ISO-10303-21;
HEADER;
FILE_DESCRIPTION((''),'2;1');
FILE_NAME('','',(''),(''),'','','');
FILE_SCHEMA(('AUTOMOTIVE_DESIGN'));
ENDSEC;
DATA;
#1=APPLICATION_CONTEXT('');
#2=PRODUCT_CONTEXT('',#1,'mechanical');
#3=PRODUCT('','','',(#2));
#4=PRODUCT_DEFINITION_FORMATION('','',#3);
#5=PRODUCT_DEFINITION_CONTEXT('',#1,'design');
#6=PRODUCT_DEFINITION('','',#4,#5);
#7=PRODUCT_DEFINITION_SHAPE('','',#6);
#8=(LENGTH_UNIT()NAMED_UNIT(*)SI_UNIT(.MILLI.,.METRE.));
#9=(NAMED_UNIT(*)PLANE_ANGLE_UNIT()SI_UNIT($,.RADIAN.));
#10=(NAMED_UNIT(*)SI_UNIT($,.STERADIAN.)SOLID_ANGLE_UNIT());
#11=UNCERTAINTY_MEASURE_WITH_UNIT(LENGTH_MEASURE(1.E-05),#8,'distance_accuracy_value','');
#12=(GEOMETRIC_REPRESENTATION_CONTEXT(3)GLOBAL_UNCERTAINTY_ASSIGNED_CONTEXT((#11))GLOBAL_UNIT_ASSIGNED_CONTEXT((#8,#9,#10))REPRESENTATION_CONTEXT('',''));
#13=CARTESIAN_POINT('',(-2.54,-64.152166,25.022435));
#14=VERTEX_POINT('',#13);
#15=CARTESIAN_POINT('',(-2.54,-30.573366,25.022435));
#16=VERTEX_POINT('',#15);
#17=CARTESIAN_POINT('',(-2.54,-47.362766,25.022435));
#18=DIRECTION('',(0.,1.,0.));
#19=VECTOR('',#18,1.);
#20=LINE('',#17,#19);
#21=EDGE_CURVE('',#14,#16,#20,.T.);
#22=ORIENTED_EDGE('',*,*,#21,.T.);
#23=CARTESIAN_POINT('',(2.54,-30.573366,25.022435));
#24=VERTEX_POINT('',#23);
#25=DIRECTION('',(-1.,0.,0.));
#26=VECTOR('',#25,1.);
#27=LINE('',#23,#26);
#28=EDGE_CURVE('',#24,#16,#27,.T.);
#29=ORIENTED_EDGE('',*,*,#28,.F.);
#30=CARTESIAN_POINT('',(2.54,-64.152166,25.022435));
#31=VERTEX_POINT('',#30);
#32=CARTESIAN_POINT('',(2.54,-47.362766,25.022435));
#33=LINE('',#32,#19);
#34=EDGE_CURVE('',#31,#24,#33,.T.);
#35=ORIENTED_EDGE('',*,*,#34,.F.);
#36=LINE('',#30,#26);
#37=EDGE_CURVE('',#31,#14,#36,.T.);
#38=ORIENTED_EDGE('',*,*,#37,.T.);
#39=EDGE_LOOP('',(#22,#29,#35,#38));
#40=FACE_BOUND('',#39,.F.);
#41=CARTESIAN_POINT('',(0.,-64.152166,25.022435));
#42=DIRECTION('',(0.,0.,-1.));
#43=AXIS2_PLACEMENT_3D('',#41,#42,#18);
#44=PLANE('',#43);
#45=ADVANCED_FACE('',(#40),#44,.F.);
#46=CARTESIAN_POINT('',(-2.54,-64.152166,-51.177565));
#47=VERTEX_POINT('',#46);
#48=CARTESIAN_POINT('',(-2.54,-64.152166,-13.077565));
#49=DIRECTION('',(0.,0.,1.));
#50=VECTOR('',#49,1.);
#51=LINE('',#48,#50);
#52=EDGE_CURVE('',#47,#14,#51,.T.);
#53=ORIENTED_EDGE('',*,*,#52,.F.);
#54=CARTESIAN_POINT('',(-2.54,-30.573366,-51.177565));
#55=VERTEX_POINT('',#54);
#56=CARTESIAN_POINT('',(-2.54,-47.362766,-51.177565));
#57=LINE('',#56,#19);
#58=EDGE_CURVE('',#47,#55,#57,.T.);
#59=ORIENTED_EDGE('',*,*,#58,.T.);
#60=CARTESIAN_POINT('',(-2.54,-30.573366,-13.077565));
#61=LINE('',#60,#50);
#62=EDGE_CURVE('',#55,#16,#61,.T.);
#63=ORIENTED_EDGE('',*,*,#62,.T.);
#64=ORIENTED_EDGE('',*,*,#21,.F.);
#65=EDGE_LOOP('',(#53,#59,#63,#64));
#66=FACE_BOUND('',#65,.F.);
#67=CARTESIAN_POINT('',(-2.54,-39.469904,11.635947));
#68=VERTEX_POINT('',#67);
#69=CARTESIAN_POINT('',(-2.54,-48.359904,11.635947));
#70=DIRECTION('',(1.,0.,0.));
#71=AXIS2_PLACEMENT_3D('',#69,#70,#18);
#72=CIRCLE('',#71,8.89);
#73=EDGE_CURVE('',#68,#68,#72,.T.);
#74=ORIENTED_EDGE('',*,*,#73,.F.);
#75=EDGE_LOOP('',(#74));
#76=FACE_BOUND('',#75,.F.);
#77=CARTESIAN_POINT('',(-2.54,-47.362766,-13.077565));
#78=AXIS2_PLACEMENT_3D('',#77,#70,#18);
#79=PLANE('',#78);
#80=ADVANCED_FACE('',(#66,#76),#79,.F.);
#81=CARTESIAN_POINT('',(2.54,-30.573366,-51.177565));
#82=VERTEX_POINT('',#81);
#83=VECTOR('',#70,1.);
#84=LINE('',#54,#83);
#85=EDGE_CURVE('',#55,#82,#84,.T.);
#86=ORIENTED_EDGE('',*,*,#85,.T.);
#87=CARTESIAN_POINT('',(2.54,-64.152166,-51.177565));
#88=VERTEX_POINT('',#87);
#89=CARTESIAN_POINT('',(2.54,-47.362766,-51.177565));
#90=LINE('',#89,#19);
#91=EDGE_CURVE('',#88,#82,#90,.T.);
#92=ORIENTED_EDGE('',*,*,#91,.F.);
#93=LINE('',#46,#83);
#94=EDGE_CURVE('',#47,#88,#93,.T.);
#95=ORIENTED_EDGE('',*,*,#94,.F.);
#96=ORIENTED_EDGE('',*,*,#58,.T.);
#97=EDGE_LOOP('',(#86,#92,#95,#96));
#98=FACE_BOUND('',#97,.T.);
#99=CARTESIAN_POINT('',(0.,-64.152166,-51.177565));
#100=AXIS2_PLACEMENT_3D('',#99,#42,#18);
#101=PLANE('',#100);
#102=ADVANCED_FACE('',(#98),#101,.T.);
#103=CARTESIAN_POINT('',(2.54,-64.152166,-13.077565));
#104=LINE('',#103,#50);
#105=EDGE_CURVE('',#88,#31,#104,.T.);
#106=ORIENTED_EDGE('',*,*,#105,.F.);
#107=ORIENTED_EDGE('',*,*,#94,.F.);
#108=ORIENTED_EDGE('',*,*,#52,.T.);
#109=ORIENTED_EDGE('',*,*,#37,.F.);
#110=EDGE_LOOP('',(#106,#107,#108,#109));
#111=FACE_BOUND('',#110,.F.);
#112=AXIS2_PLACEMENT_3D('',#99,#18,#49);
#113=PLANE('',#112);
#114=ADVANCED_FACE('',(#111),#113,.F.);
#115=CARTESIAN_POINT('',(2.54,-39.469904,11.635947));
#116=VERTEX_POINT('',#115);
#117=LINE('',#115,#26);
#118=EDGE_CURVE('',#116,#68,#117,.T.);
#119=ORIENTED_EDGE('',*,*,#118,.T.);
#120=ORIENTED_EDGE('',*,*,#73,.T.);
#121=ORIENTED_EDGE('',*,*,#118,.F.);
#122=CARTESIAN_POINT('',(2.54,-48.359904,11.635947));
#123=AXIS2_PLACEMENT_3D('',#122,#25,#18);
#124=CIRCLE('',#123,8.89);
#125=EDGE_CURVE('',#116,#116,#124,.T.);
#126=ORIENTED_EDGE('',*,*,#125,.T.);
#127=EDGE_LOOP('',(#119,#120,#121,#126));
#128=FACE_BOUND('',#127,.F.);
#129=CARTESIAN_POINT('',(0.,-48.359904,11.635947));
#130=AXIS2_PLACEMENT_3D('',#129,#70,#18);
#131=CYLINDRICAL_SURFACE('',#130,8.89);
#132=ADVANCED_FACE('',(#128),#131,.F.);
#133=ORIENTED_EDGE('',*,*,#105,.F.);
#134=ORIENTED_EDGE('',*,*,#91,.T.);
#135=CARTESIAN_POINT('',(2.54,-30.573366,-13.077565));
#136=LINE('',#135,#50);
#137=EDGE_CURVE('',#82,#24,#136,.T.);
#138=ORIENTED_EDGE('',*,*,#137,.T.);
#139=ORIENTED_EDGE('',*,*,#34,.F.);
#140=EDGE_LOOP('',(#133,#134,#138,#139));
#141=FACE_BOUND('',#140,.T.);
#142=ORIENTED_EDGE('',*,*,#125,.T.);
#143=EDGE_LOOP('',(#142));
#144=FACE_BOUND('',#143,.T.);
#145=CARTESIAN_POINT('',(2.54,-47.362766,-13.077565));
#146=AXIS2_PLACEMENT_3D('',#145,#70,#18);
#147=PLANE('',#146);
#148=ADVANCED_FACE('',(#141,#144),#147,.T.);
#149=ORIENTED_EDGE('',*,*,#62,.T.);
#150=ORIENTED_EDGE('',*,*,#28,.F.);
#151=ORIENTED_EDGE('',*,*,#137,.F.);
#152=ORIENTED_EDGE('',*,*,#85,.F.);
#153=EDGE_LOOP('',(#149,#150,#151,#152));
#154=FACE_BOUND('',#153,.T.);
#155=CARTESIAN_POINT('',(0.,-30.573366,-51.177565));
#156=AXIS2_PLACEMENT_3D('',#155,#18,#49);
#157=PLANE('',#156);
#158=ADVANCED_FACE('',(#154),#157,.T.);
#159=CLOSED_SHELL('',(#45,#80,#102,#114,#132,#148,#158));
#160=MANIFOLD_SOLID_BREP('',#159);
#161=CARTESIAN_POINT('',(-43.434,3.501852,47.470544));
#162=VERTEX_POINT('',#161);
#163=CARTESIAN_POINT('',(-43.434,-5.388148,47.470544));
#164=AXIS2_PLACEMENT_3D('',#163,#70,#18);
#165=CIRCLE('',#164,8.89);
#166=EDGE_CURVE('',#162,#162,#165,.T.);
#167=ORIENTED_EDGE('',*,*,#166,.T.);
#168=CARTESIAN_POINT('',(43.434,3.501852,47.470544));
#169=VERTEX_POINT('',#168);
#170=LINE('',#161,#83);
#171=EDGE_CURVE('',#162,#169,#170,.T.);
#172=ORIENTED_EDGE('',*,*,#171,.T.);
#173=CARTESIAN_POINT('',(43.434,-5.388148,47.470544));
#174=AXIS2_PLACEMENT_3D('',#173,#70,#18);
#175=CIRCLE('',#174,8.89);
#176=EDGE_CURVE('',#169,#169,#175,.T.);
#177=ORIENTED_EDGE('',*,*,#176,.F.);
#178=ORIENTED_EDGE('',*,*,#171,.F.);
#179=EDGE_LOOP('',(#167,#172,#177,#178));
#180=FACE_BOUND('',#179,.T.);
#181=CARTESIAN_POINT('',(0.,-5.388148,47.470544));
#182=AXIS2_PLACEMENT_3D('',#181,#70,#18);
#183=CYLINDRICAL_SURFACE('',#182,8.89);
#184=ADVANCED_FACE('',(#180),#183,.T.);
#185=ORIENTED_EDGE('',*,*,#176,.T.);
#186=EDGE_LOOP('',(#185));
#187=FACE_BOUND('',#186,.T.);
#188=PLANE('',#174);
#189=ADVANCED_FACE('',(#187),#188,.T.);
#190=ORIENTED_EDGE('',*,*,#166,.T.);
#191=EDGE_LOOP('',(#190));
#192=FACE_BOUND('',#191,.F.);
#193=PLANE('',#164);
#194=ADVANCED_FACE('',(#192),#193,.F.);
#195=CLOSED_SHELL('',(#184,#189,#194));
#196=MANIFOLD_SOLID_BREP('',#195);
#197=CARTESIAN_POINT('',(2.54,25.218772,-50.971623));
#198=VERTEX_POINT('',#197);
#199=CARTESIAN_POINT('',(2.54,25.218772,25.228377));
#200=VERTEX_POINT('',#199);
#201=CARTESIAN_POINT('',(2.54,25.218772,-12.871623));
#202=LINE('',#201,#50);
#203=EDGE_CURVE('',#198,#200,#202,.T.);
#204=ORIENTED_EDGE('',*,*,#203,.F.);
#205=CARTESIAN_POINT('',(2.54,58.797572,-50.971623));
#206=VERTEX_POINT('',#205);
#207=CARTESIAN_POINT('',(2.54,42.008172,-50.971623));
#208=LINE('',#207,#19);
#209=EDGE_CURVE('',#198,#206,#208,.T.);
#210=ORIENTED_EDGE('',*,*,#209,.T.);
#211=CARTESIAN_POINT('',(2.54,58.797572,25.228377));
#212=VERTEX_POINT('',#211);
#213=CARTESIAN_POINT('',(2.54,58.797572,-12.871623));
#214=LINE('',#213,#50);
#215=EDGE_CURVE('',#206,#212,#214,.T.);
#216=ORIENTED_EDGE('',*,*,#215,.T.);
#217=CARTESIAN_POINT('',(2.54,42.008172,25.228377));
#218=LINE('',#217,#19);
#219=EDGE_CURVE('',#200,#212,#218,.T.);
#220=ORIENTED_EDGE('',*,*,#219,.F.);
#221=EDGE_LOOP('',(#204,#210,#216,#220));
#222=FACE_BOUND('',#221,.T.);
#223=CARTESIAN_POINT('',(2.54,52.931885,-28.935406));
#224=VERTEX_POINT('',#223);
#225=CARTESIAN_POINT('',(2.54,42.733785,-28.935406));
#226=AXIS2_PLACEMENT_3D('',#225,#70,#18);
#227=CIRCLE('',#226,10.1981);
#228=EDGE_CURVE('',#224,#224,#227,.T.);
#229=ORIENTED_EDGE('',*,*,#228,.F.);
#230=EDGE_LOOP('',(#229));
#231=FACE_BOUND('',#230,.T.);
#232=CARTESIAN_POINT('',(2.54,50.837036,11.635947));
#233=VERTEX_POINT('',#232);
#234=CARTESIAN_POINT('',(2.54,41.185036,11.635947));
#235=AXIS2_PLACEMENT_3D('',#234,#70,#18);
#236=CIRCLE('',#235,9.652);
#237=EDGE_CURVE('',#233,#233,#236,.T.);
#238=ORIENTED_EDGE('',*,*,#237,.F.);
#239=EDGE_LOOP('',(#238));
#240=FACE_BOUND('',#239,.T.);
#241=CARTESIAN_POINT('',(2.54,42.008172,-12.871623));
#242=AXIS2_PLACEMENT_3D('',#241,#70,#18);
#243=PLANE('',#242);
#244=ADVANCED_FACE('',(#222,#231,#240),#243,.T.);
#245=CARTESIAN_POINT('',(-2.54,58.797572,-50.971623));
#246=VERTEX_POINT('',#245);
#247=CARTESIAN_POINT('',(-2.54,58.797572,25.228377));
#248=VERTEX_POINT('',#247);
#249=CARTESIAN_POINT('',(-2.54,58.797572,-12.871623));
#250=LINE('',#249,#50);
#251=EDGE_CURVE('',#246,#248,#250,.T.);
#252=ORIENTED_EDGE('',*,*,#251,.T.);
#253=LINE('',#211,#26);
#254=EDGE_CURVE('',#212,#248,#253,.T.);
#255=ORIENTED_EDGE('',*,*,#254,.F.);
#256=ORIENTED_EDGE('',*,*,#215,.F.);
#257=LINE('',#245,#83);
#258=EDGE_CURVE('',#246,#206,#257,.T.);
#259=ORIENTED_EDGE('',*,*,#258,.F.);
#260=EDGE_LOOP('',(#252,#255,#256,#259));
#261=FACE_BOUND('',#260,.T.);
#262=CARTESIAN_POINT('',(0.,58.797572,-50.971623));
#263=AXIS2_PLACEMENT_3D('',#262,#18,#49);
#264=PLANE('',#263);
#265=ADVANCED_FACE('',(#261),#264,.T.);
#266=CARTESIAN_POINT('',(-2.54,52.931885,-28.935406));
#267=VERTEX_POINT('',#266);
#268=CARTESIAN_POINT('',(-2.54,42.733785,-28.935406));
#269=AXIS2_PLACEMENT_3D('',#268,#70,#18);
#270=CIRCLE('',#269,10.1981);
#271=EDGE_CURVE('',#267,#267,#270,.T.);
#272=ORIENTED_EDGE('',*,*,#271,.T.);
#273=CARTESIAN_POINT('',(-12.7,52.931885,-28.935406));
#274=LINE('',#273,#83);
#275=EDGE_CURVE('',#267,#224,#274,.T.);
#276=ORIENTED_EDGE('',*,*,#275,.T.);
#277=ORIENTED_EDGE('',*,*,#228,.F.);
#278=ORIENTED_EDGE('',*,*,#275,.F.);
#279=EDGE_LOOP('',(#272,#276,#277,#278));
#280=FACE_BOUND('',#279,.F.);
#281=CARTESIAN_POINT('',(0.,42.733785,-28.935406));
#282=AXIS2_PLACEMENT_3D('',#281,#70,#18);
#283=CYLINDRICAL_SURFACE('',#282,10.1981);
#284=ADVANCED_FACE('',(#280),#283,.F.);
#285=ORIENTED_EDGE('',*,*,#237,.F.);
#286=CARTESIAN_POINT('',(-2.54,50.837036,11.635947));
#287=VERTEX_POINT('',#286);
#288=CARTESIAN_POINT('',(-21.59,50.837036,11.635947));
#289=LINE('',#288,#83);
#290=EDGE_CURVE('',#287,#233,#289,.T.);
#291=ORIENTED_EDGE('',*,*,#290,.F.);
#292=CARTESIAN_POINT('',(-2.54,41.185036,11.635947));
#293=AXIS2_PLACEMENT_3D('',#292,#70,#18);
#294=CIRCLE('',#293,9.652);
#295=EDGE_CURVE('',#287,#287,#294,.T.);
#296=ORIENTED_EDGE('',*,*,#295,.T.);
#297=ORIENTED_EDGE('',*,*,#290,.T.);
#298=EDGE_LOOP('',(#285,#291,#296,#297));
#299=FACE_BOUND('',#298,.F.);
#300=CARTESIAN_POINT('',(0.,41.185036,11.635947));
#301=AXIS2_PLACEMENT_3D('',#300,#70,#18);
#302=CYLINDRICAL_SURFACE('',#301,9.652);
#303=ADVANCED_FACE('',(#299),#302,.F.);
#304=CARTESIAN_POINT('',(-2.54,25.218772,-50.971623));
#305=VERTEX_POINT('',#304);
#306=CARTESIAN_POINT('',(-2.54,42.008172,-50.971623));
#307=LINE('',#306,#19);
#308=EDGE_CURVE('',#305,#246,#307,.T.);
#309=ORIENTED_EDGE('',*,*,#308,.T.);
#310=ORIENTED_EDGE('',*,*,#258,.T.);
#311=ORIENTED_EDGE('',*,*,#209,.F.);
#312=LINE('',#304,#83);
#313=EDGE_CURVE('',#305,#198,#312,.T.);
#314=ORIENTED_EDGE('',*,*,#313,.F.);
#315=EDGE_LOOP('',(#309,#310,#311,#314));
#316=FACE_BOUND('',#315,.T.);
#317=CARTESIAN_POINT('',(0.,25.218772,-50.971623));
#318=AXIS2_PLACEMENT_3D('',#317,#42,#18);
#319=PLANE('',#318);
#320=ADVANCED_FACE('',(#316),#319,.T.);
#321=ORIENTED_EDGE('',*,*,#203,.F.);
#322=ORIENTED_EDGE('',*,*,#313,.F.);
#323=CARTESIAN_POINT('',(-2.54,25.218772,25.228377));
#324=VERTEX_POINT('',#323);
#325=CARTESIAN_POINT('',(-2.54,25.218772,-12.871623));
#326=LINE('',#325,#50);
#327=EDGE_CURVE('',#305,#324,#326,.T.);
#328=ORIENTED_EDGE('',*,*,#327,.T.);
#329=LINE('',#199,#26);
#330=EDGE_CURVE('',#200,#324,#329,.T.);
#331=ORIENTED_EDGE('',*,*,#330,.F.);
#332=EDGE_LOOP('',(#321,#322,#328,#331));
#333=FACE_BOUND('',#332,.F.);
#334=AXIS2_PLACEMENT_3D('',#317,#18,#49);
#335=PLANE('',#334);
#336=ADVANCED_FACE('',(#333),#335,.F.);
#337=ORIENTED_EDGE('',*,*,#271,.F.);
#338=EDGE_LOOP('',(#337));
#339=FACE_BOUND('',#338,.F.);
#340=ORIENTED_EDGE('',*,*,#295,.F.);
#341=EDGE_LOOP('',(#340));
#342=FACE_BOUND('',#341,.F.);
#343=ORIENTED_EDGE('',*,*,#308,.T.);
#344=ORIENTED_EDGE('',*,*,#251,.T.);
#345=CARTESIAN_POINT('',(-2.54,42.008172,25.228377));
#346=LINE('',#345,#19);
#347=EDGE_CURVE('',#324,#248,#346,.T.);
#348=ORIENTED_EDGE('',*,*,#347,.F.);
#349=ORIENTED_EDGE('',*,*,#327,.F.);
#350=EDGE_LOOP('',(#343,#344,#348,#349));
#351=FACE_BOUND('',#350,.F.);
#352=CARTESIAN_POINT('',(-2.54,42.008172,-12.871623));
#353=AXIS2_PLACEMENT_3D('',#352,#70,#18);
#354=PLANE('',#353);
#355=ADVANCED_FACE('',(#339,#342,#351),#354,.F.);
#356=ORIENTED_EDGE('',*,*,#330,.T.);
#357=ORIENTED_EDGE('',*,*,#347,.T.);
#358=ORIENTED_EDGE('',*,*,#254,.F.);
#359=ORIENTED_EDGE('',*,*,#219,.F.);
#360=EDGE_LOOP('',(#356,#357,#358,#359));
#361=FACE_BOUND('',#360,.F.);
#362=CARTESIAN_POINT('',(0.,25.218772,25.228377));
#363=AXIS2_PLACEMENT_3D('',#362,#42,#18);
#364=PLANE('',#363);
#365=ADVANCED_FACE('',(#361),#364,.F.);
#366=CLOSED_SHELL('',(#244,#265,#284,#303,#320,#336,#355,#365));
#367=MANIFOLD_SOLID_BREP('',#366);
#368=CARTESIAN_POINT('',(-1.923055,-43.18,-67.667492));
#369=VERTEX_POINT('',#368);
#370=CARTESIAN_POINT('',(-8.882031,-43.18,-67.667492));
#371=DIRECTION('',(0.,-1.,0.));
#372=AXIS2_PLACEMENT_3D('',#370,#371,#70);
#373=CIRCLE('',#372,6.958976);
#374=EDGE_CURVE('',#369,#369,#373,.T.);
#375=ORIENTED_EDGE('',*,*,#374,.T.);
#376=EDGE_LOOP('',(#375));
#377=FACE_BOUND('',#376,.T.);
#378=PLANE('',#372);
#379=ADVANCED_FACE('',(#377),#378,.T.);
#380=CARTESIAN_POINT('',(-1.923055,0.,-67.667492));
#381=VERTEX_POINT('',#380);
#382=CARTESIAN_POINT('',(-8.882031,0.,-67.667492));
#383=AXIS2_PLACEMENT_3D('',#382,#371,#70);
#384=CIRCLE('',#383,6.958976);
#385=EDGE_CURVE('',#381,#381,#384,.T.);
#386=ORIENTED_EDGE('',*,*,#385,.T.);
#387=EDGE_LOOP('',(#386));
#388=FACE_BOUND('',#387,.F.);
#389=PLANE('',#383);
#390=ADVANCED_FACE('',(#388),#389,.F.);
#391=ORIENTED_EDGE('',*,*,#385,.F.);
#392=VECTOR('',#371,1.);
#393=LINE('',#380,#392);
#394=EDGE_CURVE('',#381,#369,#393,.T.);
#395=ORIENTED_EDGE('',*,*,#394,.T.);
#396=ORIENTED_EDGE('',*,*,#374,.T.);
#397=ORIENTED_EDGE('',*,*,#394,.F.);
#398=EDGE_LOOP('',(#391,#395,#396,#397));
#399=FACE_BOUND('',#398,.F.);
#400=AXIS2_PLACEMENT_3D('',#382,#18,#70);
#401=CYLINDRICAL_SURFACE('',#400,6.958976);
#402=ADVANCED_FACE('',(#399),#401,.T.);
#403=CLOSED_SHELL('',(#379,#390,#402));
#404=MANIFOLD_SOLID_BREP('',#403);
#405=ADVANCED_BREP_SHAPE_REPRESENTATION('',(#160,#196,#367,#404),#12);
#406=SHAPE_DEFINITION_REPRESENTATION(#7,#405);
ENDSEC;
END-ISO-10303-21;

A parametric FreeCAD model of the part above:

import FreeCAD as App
import Part
import Sketcher
from FreeCAD import Vector
Q = App.Units.Quantity

doc = App.newDocument("Part")
body = doc.addObject("PartDesign::Body", "Body")

# Sketch on YZ plane
sketch1 = body.newObject("Sketcher::SketchObject", "Sketch")
sketch1.AttachmentSupport = (doc.getObject("YZ_Plane"), [""])
sketch1.MapMode = "FlatFace"
sketch1.addGeometry([
    Part.LineSegment(Vector(-64, 25, 0), Vector(-64, -51, 0)),
    Part.LineSegment(Vector(-64, -51, 0), Vector(-31, -51, 0)),
    Part.LineSegment(Vector(-31, -51, 0), Vector(-31, 25, 0)),
    Part.LineSegment(Vector(-31, 25, 0), Vector(-64, 25, 0)),
], False)
sketch1.addConstraint([
    Sketcher.Constraint("Coincident", 0, 2, 1, 1),
    Sketcher.Constraint("Coincident", 1, 2, 2, 1),
    Sketcher.Constraint("Coincident", 2, 2, 3, 1),
    Sketcher.Constraint("Coincident", 3, 2, 0, 1),
    Sketcher.Constraint("Vertical", 0),
    Sketcher.Constraint("Horizontal", 1),
    Sketcher.Constraint("Vertical", 2),
    Sketcher.Constraint("Horizontal", 3),
    Sketcher.Constraint("DistanceY", 0, 2, 0, 1, Q("3 in")),
    Sketcher.Constraint("DistanceX", 1, 1, 1, 2, Q("1.322 in")),
    Sketcher.Constraint("DistanceX", 0, 2, -1, 1, Q("64.152166 mm")),
    Sketcher.Constraint("DistanceY", 0, 2, -1, 1, Q("51.177565 mm")),
])
pad1 = body.newObject("PartDesign::Pad", "Pad")
pad1.Profile = sketch1
pad1.Length = Q("0.2 in")
pad1.Midplane = True
body2 = doc.addObject("PartDesign::Body", "Body001")

# Sketch on YZ plane
sketch2 = body2.newObject("Sketcher::SketchObject", "Sketch001")
sketch2.AttachmentSupport = (doc.getObject("YZ_Plane001"), [""])
sketch2.MapMode = "FlatFace"
sketch2.addGeometry([
    Part.LineSegment(Vector(25, 25, 0), Vector(25, -51, 0)),
    Part.LineSegment(Vector(25, -51, 0), Vector(59, -51, 0)),
    Part.LineSegment(Vector(59, -51, 0), Vector(59, 25, 0)),
    Part.LineSegment(Vector(59, 25, 0), Vector(25, 25, 0)),
], False)
sketch2.addConstraint([
    Sketcher.Constraint("Coincident", 0, 2, 1, 1),
    Sketcher.Constraint("Coincident", 1, 2, 2, 1),
    Sketcher.Constraint("Coincident", 2, 2, 3, 1),
    Sketcher.Constraint("Coincident", 3, 2, 0, 1),
    Sketcher.Constraint("Vertical", 0),
    Sketcher.Constraint("Horizontal", 1),
    Sketcher.Constraint("Vertical", 2),
    Sketcher.Constraint("Horizontal", 3),
    Sketcher.Constraint("DistanceY", 0, 2, 0, 1, Q("3 in")),
    Sketcher.Constraint("DistanceX", 1, 1, 1, 2, Q("1.322 in")),
    Sketcher.Constraint("DistanceX", -1, 1, 0, 2, Q("25.218772 mm")),
    Sketcher.Constraint("DistanceY", 0, 2, -1, 1, Q("50.971623 mm")),
])
pad2 = body2.newObject("PartDesign::Pad", "Pad001")
pad2.Profile = sketch2
pad2.Length = Q("0.2 in")
pad2.Midplane = True
body3 = doc.addObject("PartDesign::Body", "Body002")

# Sketch on YZ plane
sketch3 = body3.newObject("Sketcher::SketchObject", "Sketch002")
sketch3.AttachmentSupport = (doc.getObject("YZ_Plane002"), [""])
sketch3.MapMode = "FlatFace"
sketch3.addGeometry(Part.Circle(Vector(-5, 47, 0), Vector(0, 0, 1), 9), False)
sketch3.addConstraint([
    Sketcher.Constraint("Diameter", 0, Q("0.7 in")),
    Sketcher.Constraint("DistanceX", 0, 3, -1, 1, Q("5.388148 mm")),
    Sketcher.Constraint("DistanceY", -1, 1, 0, 3, Q("47.470544 mm")),
])
pad3 = body3.newObject("PartDesign::Pad", "Pad002")
pad3.Profile = sketch3
pad3.Length = Q("3.42 in")
pad3.Midplane = True
body4 = doc.addObject("PartDesign::Body", "Body003")
body4.AllowCompound = True

# Sketch on YZ plane
sketch4 = body4.newObject("Sketcher::SketchObject", "Sketch003")
sketch4.AttachmentSupport = (doc.getObject("YZ_Plane003"), [""])
sketch4.MapMode = "FlatFace"
sketch4.addGeometry([
    Part.Circle(Vector(-48, 12, 0), Vector(0, 0, 1), 9),
    Part.Circle(Vector(41, 12, 0), Vector(0, 0, 1), 10),
], False)
sketch4.addConstraint([
    Sketcher.Constraint("Horizontal", 0, 3, 1, 3),
    Sketcher.Constraint("Diameter", 0, Q("0.7 in")),
    Sketcher.Constraint("Diameter", 1, Q("0.76 in")),
    Sketcher.Constraint("DistanceX", 0, 3, 1, 3, Q("89.544941 mm")),
    Sketcher.Constraint("DistanceX", 0, 3, -1, 1, Q("48.359904 mm")),
    Sketcher.Constraint("DistanceY", -1, 1, 0, 3, Q("11.635947 mm")),
])
pad4 = body4.newObject("PartDesign::Pad", "Pad003")
pad4.Profile = sketch4
pad4.Length = Q("1.7 in")
pad4.Midplane = True
doc.recompute()

body5 = doc.addObject("PartDesign::Body", "Body004")
body5.BaseFeature = body4
boolean = body.newObject("PartDesign::Boolean", "Boolean")
boolean.Type = "Cut"
boolean.addObjects([body5])
doc.recompute()

# Sketch on YZ plane
sketch5 = body.newObject("Sketcher::SketchObject", "Sketch004")
sketch5.AttachmentSupport = (doc.getObject("YZ_Plane"), [""])
sketch5.MapMode = "FlatFace"
sketch5.addGeometry([
    Part.Circle(Vector(-48, 12, 0), Vector(0, 0, 1), 9),
    Part.Circle(Vector(41, 12, 0), Vector(0, 0, 1), 10),
], False)
sketch5.addConstraint([
    Sketcher.Constraint("Horizontal", 0, 3, 1, 3),
    Sketcher.Constraint("Diameter", 0, Q("0.7 in")),
    Sketcher.Constraint("Diameter", 1, Q("0.76 in")),
    Sketcher.Constraint("DistanceX", 0, 3, 1, 3, Q("89.544941 mm")),
    Sketcher.Constraint("DistanceX", 0, 3, -1, 1, Q("48.359904 mm")),
    Sketcher.Constraint("DistanceY", -1, 1, 0, 3, Q("11.635947 mm")),
])
pocket1 = body.newObject("PartDesign::Pocket", "Pocket")
pocket1.Profile = sketch5
pocket1.Length = Q("1 in")
pocket1.Midplane = True
doc.recompute()

boolean2 = body2.newObject("PartDesign::Boolean", "Boolean001")
boolean2.Type = "Cut"
boolean2.addObjects([body4])

# Sketch on YZ plane
sketch6 = body2.newObject("Sketcher::SketchObject", "Sketch005")
sketch6.AttachmentSupport = (doc.getObject("YZ_Plane001"), [""])
sketch6.MapMode = "FlatFace"
sketch6.addGeometry(Part.Circle(Vector(43, -29, 0), Vector(0, 0, 1), 10), False)
sketch6.addConstraint([
    Sketcher.Constraint("Diameter", 0, Q("0.803 in")),
    Sketcher.Constraint("DistanceX", -1, 1, 0, 3, Q("42.733785 mm")),
    Sketcher.Constraint("DistanceY", 0, 3, -1, 1, Q("28.935406 mm")),
])
pocket2 = body2.newObject("PartDesign::Pocket", "Pocket001")
pocket2.Profile = sketch6
pocket2.Length = Q("1 in")
pocket2.Midplane = True
body6 = doc.addObject("PartDesign::Body", "Body005")

# Sketch on XZ plane
sketch7 = body6.newObject("Sketcher::SketchObject", "Sketch006")
sketch7.AttachmentSupport = (doc.getObject("XZ_Plane005"), [""])
sketch7.MapMode = "FlatFace"
sketch7.addGeometry(Part.Circle(Vector(-9, -68, 0), Vector(0, 0, 1), 7), False)
sketch7.addConstraint([
    Sketcher.Constraint("Diameter", 0, Q("13.917953 mm")),
    Sketcher.Constraint("DistanceX", 0, 3, -1, 1, Q("8.882031 mm")),
    Sketcher.Constraint("DistanceY", 0, 3, -1, 1, Q("67.667492 mm")),
])
pad5 = body6.newObject("PartDesign::Pad", "Pad004")
pad5.Profile = sketch7
pad5.Length = Q("1.7 in")

doc.recompute()
